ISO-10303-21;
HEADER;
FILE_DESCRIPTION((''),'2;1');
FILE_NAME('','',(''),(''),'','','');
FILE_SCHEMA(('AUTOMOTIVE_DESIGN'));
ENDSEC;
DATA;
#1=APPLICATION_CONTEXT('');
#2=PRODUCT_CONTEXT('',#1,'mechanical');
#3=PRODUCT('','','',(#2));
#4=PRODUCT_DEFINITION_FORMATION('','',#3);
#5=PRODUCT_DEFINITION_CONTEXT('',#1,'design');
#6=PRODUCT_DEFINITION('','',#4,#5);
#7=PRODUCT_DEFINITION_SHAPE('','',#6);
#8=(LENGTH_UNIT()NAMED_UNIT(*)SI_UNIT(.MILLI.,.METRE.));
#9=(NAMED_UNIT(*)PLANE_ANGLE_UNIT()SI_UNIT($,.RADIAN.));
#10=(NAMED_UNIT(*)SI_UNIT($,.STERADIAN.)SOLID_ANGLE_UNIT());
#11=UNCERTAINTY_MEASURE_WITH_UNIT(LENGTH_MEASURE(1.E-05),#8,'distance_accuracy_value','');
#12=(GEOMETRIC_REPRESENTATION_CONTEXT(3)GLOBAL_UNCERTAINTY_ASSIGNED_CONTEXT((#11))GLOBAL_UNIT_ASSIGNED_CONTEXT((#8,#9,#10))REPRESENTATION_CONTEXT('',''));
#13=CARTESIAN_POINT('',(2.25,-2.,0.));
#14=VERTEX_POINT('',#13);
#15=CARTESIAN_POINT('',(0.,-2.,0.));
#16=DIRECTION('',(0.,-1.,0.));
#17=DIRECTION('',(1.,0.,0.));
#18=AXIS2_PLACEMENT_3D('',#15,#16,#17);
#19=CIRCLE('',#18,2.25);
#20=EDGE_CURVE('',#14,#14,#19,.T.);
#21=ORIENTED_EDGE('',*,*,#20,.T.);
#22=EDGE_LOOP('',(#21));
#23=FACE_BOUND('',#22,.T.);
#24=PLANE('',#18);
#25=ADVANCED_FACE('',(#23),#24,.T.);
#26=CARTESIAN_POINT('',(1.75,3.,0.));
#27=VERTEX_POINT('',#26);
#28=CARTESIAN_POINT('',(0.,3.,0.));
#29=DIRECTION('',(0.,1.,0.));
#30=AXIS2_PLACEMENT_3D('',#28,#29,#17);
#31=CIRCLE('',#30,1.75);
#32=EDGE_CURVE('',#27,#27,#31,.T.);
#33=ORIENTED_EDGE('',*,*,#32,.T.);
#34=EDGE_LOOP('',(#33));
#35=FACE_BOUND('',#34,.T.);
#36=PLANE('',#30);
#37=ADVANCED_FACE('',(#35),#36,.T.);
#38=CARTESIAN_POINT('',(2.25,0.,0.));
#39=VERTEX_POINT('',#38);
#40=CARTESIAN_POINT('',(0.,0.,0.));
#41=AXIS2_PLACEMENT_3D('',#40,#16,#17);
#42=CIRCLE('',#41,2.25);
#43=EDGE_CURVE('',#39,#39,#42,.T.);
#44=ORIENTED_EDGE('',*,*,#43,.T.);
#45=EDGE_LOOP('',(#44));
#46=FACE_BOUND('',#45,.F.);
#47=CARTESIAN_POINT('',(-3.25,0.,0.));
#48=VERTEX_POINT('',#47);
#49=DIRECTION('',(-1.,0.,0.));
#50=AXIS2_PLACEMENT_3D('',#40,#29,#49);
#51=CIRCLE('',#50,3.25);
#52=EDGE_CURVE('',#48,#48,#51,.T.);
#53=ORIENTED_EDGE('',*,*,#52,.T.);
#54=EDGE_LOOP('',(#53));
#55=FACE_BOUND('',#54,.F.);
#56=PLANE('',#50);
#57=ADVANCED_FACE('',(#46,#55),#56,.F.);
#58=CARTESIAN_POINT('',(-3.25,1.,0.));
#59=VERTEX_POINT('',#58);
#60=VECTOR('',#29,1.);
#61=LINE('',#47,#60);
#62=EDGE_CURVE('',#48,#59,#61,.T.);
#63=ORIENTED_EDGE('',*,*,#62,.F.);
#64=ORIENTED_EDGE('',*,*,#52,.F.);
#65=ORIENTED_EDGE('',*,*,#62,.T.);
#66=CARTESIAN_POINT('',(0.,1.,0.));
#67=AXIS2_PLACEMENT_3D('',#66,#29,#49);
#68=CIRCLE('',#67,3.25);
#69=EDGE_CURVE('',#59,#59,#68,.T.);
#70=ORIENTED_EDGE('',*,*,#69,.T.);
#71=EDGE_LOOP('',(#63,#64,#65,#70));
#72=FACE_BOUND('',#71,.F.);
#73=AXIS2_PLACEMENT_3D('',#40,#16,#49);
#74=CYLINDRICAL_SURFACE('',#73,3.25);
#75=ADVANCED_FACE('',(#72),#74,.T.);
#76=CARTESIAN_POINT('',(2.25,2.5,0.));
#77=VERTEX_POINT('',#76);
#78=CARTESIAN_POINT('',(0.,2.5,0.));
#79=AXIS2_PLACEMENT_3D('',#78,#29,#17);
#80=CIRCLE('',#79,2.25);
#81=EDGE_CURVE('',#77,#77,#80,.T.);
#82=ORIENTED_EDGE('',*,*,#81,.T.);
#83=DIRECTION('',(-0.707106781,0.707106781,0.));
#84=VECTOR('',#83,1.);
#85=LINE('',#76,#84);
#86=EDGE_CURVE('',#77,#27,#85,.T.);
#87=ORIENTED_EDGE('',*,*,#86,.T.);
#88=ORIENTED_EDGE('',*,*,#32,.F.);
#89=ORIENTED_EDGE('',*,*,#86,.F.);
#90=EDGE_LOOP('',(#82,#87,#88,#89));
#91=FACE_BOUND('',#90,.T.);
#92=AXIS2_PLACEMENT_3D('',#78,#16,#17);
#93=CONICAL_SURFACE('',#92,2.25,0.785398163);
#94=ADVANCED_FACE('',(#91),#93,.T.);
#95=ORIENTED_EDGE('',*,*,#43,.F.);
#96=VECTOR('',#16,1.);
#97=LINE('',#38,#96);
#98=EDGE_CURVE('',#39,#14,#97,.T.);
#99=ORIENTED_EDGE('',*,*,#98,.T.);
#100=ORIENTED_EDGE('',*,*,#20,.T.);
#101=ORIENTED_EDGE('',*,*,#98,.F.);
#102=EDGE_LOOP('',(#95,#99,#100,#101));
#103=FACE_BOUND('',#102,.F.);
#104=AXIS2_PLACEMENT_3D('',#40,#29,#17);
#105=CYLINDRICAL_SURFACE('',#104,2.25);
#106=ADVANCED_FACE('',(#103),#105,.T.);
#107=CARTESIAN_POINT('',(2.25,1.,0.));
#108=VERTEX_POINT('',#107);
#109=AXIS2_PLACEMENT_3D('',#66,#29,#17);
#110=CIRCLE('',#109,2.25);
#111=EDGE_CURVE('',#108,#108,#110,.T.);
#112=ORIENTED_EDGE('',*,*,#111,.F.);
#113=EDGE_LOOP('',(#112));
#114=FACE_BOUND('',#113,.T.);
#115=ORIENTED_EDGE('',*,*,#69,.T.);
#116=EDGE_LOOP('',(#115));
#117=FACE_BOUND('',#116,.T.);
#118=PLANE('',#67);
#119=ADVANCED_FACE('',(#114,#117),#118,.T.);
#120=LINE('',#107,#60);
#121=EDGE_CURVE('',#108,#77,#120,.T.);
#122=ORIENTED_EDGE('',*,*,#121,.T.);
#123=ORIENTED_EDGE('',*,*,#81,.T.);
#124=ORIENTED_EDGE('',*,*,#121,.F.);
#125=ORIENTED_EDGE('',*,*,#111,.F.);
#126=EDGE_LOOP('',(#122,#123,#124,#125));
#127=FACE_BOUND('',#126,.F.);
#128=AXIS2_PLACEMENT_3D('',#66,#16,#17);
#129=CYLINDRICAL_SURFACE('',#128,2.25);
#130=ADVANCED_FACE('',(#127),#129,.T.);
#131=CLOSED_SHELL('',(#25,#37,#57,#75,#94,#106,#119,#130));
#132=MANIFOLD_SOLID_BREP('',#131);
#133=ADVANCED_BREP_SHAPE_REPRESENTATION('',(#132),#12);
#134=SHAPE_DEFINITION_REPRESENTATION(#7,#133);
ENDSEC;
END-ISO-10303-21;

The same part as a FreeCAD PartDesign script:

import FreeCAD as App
import Part
import Sketcher
from FreeCAD import Vector
Q = App.Units.Quantity


def edges_at(feature, points):
    """Names of the edges that pass closest to the given points."""
    edges = feature.Shape.Edges
    near = lambda p: min(range(len(edges)), key=lambda i: edges[i].distToShape(Part.Vertex(*p))[0])
    return sorted({f"Edge{near(p) + 1}" for p in points})

doc = App.newDocument("Part")
body = doc.addObject("PartDesign::Body", "Body")

# Sketch on XZ plane
sketch1 = body.newObject("Sketcher::SketchObject", "Sketch")
sketch1.AttachmentSupport = (doc.getObject("XZ_Plane"), [""])
sketch1.MapMode = "FlatFace"
sketch1.addGeometry(Part.Circle(Vector(0, 0, 0), Vector(0, 0, 1), 3.2), False)
sketch1.addConstraint([
    Sketcher.Constraint("Coincident", 0, 3, -1, 1),
    Sketcher.Constraint("Diameter", 0, Q("6.5 mm")),
])
pad1 = body.newObject("PartDesign::Pad", "Pad")
pad1.Profile = sketch1
pad1.Length = 1
pad1.Reversed = True

# Sketch on XZ plane
sketch2 = body.newObject("Sketcher::SketchObject", "Sketch001")
sketch2.AttachmentSupport = (doc.getObject("XZ_Plane"), [""])
sketch2.MapMode = "FlatFace"
sketch2.AttachmentOffset = App.Placement(Vector(0, 0, -1), App.Rotation())
sketch2.addGeometry(Part.Circle(Vector(0, 0, 0), Vector(0, 0, 1), 2.2), False)
sketch2.addConstraint([
    Sketcher.Constraint("Coincident", 0, 3, -1, 1),
    Sketcher.Constraint("Diameter", 0, Q("4.5 mm")),
])
pad2 = body.newObject("PartDesign::Pad", "Pad001")
pad2.Profile = sketch2
pad2.Length = 2
pad2.Reversed = True

# Sketch on XZ plane
sketch3 = body.newObject("Sketcher::SketchObject", "Sketch002")
sketch3.AttachmentSupport = (doc.getObject("XZ_Plane"), [""])
sketch3.MapMode = "FlatFace"
sketch3.addGeometry(Part.Circle(Vector(0, 0, 0), Vector(0, 0, 1), 2.2), False)
sketch3.addConstraint([
    Sketcher.Constraint("Coincident", 0, 3, -1, 1),
    Sketcher.Constraint("Diameter", 0, Q("4.5 mm")),
])
pad3 = body.newObject("PartDesign::Pad", "Pad002")
pad3.Profile = sketch3
pad3.Length = 2
doc.recompute()

chamfer = body.newObject("PartDesign::Chamfer", "Chamfer")
chamfer.Base = (pad3, edges_at(pad3, [(-2.25, 3, 0)]))
chamfer.Size = 0.5

doc.recompute()
